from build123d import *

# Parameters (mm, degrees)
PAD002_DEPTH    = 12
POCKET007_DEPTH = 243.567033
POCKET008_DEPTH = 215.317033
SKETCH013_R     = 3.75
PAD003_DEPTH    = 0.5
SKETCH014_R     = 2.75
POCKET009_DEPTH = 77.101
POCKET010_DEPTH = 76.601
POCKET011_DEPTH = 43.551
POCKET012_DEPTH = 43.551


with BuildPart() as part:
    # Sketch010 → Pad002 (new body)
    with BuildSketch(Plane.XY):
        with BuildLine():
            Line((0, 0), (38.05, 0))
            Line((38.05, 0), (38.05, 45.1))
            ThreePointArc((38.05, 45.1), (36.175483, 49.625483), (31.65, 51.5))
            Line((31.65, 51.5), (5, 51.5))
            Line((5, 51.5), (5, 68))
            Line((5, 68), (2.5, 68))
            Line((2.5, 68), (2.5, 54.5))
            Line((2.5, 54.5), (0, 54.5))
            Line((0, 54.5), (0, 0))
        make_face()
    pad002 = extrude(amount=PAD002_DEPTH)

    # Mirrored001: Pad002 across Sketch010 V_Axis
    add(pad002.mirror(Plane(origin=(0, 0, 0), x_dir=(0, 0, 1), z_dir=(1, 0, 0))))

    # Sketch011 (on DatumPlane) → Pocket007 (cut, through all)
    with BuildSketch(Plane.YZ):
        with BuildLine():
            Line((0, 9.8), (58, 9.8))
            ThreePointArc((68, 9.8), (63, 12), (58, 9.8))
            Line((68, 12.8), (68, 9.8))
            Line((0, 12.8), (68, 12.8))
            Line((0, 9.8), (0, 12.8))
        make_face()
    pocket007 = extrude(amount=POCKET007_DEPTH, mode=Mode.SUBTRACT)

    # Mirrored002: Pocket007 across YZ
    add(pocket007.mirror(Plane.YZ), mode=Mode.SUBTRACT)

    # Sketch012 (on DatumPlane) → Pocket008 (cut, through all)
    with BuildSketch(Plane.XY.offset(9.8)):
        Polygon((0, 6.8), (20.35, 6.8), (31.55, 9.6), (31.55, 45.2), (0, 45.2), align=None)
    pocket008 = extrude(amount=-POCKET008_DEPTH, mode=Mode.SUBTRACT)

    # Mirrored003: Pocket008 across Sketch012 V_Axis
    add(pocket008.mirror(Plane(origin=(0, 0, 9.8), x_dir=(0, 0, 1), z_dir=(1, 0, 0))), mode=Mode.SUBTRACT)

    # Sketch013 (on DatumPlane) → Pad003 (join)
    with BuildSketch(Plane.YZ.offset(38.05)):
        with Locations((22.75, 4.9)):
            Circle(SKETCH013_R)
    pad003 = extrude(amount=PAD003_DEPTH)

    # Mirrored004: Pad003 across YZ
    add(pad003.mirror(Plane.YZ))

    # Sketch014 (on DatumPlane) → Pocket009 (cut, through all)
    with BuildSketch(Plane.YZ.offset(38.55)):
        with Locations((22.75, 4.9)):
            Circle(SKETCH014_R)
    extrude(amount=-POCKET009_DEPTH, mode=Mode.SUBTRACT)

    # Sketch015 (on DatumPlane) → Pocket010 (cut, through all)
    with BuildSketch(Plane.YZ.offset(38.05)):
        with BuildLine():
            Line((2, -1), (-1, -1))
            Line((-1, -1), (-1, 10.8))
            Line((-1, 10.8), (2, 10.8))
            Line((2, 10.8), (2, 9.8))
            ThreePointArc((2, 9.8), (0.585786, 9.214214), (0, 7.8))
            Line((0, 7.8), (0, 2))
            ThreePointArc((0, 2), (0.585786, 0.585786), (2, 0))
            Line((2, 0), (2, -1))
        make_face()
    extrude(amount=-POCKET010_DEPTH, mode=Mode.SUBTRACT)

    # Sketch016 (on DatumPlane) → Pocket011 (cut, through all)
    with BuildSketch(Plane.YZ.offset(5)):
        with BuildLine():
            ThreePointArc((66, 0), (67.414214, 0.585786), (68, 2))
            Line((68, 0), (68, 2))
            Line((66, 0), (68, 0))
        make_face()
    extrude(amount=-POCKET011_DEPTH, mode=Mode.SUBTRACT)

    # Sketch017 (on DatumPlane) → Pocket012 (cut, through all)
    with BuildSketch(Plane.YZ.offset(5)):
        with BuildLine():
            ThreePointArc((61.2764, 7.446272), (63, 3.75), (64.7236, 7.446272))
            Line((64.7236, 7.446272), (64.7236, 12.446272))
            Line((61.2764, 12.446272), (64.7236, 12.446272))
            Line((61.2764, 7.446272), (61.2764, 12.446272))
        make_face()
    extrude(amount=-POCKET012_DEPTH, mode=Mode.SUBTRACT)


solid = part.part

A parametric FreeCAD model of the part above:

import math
import FreeCAD as App
import Part
import Sketcher

V = App.Vector


def add_polygon(sketch, points):
    """Adds a closed chain of lines whose ends are joined by coincident constraints."""
    first, n = sketch.GeometryCount, len(points)
    for a, b in zip(points, points[1:] + points[:1]):
        sketch.addGeometry(Part.LineSegment(App.Vector(*a, 0), App.Vector(*b, 0)), False)
    for i in range(n):
        sketch.addConstraint(Sketcher.Constraint("Coincident", first + i, 2, first + (i + 1) % n, 1))

doc = App.newDocument("Part")
params = doc.addObject("Spreadsheet::Sheet", "Params")
for row, (alias, value) in enumerate([
    ("sketch1_radius", "6.400001 mm"),
    ("sketch1_width", "2.5 mm"),
    ("sketch1_height", "45.1 mm"),
    ("sketch1_height2", "16.5 mm"),
    ("sketch1_height3", "13.5 mm"),
    ("pad1_length", "12 mm"),
    ("sketch2_width", "58 mm"),
    ("sketch2_width2", "68 mm"),
    ("sketch2_height", "3 mm"),
    ("sketch3_height", "35.6 mm"),
    ("sketch3_height2", "38.4 mm"),
    ("sketch3_width", "20.35 mm"),
    ("sketch3_width2", "31.55 mm"),
    ("sketch4_diameter", "7.5 mm"),
    ("pad2_length", "0.5 mm"),
    ("sketch5_diameter", "5.5 mm"),
    ("sketch6_radius", "1.999999 mm"),
    ("sketch6_width", "3 mm"),
    ("sketch6_height", "1 mm"),
    ("sketch6_height2", "5.8 mm"),
    ("sketch7_radius", "1.999999 mm"),
    ("sketch8_height", "5 mm"),
    ("sketch8_radius", "2.25 mm"),
], start=1):
    params.set(f"A{row}", alias)
    params.set(f"B{row}", "=" + value)
    params.setAlias(f"B{row}", alias)

body = doc.addObject("PartDesign::Body", "Body")

# Sketch on XY plane
sketch1 = doc.addObject("Sketcher::SketchObject", "Sketch")
body.addObject(sketch1)
sketch1.AttachmentSupport = (doc.XY_Plane, [""])
sketch1.MapMode = "FlatFace"
sketch1.addGeometry([
    Part.LineSegment(V(0, 0, 0), V(38, 0, 0)),  # 0
    Part.LineSegment(V(38, 0, 0), V(38, 45.1, 0)),  # 1
    Part.ArcOfCircle(Part.Circle(V(31.6, 45.1, 0), V(0, 0, 1), 6.4), math.radians(0), math.radians(90)),  # 2
    Part.LineSegment(V(31.6, 51.5, 0), V(5, 51.5, 0)),  # 3
    Part.LineSegment(V(5, 51.5, 0), V(5, 68, 0)),  # 4
    Part.LineSegment(V(5, 68, 0), V(2.5, 68, 0)),  # 5
    Part.LineSegment(V(2.5, 68, 0), V(2.5, 54.5, 0)),  # 6
    Part.LineSegment(V(2.5, 54.5, 0), V(0, 54.5, 0)),  # 7
    Part.LineSegment(V(0, 54.5, 0), V(0, 0, 0)),  # 8
], False)
sketch1.addConstraint([
    Sketcher.Constraint("Coincident", 0, 2, 1, 1),
    Sketcher.Constraint("Tangent", 1, 2, 2, 1),
    Sketcher.Constraint("Tangent", 2, 2, 3, 1),
    Sketcher.Constraint("Coincident", 3, 2, 4, 1),
    Sketcher.Constraint("Coincident", 4, 2, 5, 1),
    Sketcher.Constraint("Coincident", 5, 2, 6, 1),
    Sketcher.Constraint("Coincident", 6, 2, 7, 1),
    Sketcher.Constraint("Coincident", 7, 2, 8, 1),
    Sketcher.Constraint("Coincident", 8, 2, 0, 1),
    Sketcher.Constraint("Horizontal", 0),
    Sketcher.Constraint("Vertical", 1),
    Sketcher.Constraint("Horizontal", 3),
    Sketcher.Constraint("Vertical", 4),
    Sketcher.Constraint("Horizontal", 5),
    Sketcher.Constraint("Vertical", 6),
    Sketcher.Constraint("Horizontal", 7),
    Sketcher.Constraint("Vertical", 8),
    Sketcher.Constraint("Coincident", 8, 2, -1, 1),
    Sketcher.Constraint("Equal", 5, 7),
    Sketcher.Constraint("Radius", 2, 6.400001),
    Sketcher.Constraint("DistanceX", 5, 2, 5, 1, 2.5),
    Sketcher.Constraint("DistanceY", 1, 1, 1, 2, 45.1),
    Sketcher.Constraint("DistanceY", 4, 1, 4, 2, 16.5),
    Sketcher.Constraint("DistanceY", 6, 2, 6, 1, 13.5),
    Sketcher.Constraint("DistanceX", 0, 1, 0, 2, 38.05),
])
sketch1.setExpression("Constraints[19]", "Params.sketch1_radius")
sketch1.setExpression("Constraints[20]", "Params.sketch1_width")
sketch1.setExpression("Constraints[21]", "Params.sketch1_height")
sketch1.setExpression("Constraints[22]", "Params.sketch1_height2")
sketch1.setExpression("Constraints[23]", "Params.sketch1_height3")
pad1 = doc.addObject("PartDesign::Pad", "Pad")
body.addObject(pad1)
pad1.Profile = sketch1
pad1.setExpression("Length", "Params.pad1_length")
doc.recompute()

mirrored = doc.addObject("PartDesign::Mirrored", "Mirrored")
body.addObject(mirrored)
mirrored.Originals = [pad1]
mirrored.MirrorPlane = (doc.YZ_Plane, [""])
body.Tip = mirrored

# Sketch on YZ plane
sketch2 = doc.addObject("Sketcher::SketchObject", "Sketch001")
body.addObject(sketch2)
sketch2.AttachmentSupport = (doc.YZ_Plane, [""])
sketch2.MapMode = "FlatFace"
sketch2.addGeometry([
    Part.LineSegment(V(0, 9.8, 0), V(58, 9.8, 0)),  # 0
    Part.ArcOfCircle(Part.Circle(V(63, 5.2, 0), V(0, 0, 1), 6.8), math.radians(43), math.radians(137)),  # 1
    Part.LineSegment(V(68, 9.8, 0), V(68, 12.8, 0)),  # 2
    Part.LineSegment(V(68, 12.8, 0), V(0, 12.8, 0)),  # 3
    Part.LineSegment(V(0, 12.8, 0), V(0, 9.8, 0)),  # 4
], False)
sketch2.addConstraint([
    Sketcher.Constraint("Coincident", 0, 2, 1, 2),
    Sketcher.Constraint("Coincident", 1, 1, 2, 1),
    Sketcher.Constraint("Coincident", 2, 2, 3, 1),
    Sketcher.Constraint("Coincident", 3, 2, 4, 1),
    Sketcher.Constraint("Coincident", 4, 2, 0, 1),
    Sketcher.Constraint("Horizontal", 0),
    Sketcher.Constraint("Vertical", 2),
    Sketcher.Constraint("Horizontal", 3),
    Sketcher.Constraint("Vertical", 4),
    Sketcher.Constraint("PointOnObject", 3, 2, -2),
    Sketcher.Constraint("Horizontal", 0, 2, 1, 1),
    Sketcher.Constraint("DistanceX", 0, 1, 0, 2, 58.0),
    Sketcher.Constraint("DistanceX", 3, 2, 3, 1, 68.0),
    Sketcher.Constraint("DistanceY", 2, 1, 2, 2, 3.0),
    Sketcher.Constraint("DistanceY", -1, 1, 0, 2, 9.8),
    Sketcher.Constraint("Radius", 1, 6.781818),
])
sketch2.setExpression("Constraints[11]", "Params.sketch2_width")
sketch2.setExpression("Constraints[12]", "Params.sketch2_width2")
sketch2.setExpression("Constraints[13]", "Params.sketch2_height")
pocket1 = doc.addObject("PartDesign::Pocket", "Pocket")
body.addObject(pocket1)
pocket1.Profile = sketch2
pocket1.Type = "ThroughAll"
pocket1.Reversed = True
doc.recompute()

mirrored2 = doc.addObject("PartDesign::Mirrored", "Mirrored001")
body.addObject(mirrored2)
mirrored2.Originals = [pocket1]
mirrored2.MirrorPlane = (doc.YZ_Plane, [""])
body.Tip = mirrored2

# Sketch on XY plane
sketch3 = doc.addObject("Sketcher::SketchObject", "Sketch002")
body.addObject(sketch3)
sketch3.AttachmentSupport = (doc.XY_Plane, [""])
sketch3.MapMode = "FlatFace"
sketch3.AttachmentOffset = App.Placement(V(0, 0, 9.8), App.Rotation())
add_polygon(sketch3, [(0, 7), (20, 7), (32, 10), (32, 45), (0, 45)])  # lines 0-4
sketch3.addConstraint([
    Sketcher.Constraint("Horizontal", 0),
    Sketcher.Constraint("Vertical", 2),
    Sketcher.Constraint("Horizontal", 3),
    Sketcher.Constraint("Vertical", 4),
    Sketcher.Constraint("PointOnObject", 3, 2, -2),
    Sketcher.Constraint("DistanceY", 2, 1, 2, 2, 35.6),
    Sketcher.Constraint("DistanceY", 4, 2, 4, 1, 38.4),
    Sketcher.Constraint("DistanceX", 0, 1, 0, 2, 20.35),
    Sketcher.Constraint("DistanceX", 3, 2, 3, 1, 31.55),
    Sketcher.Constraint("DistanceY", -1, 1, 0, 2, 6.8),
])
sketch3.setExpression("Constraints[10]", "Params.sketch3_height")
sketch3.setExpression("Constraints[11]", "Params.sketch3_height2")
sketch3.setExpression("Constraints[12]", "Params.sketch3_width")
sketch3.setExpression("Constraints[13]", "Params.sketch3_width2")
pocket2 = doc.addObject("PartDesign::Pocket", "Pocket001")
body.addObject(pocket2)
pocket2.Profile = sketch3
pocket2.Type = "ThroughAll"
doc.recompute()

mirrored3 = doc.addObject("PartDesign::Mirrored", "Mirrored002")
body.addObject(mirrored3)
mirrored3.Originals = [pocket2]
mirrored3.MirrorPlane = (doc.YZ_Plane, [""])
body.Tip = mirrored3

# Sketch on YZ plane
sketch4 = doc.addObject("Sketcher::SketchObject", "Sketch003")
body.addObject(sketch4)
sketch4.AttachmentSupport = (doc.YZ_Plane, [""])
sketch4.MapMode = "FlatFace"
sketch4.AttachmentOffset = App.Placement(V(0, 0, 38.05), App.Rotation())
sketch4.addGeometry(Part.Circle(V(22.8, 4.9, 0), V(0, 0, 1), 3.8), False)
sketch4.addConstraint([
    Sketcher.Constraint("Diameter", 0, 7.5),
    Sketcher.Constraint("DistanceY", -1, 1, 0, 3, 4.9),
    Sketcher.Constraint("DistanceX", -1, 1, 0, 3, 22.75),
])
sketch4.setExpression("Constraints[0]", "Params.sketch4_diameter")
pad2 = doc.addObject("PartDesign::Pad", "Pad001")
body.addObject(pad2)
pad2.Profile = sketch4
pad2.setExpression("Length", "Params.pad2_length")
doc.recompute()

mirrored4 = doc.addObject("PartDesign::Mirrored", "Mirrored003")
body.addObject(mirrored4)
mirrored4.Originals = [pad2]
mirrored4.MirrorPlane = (doc.YZ_Plane, [""])
body.Tip = mirrored4

# Sketch on YZ plane
sketch5 = doc.addObject("Sketcher::SketchObject", "Sketch004")
body.addObject(sketch5)
sketch5.AttachmentSupport = (doc.YZ_Plane, [""])
sketch5.MapMode = "FlatFace"
sketch5.AttachmentOffset = App.Placement(V(0, 0, 38.55), App.Rotation())
sketch5.addGeometry(Part.Circle(V(22.8, 4.9, 0), V(0, 0, 1), 2.8), False)
sketch5.addConstraint([
    Sketcher.Constraint("Diameter", 0, 5.5),
    Sketcher.Constraint("DistanceY", -1, 1, 0, 3, 4.9),
    Sketcher.Constraint("DistanceX", -1, 1, 0, 3, 22.75),
])
sketch5.setExpression("Constraints[0]", "Params.sketch5_diameter")
pocket3 = doc.addObject("PartDesign::Pocket", "Pocket002")
body.addObject(pocket3)
pocket3.Profile = sketch5
pocket3.Type = "ThroughAll"

# Sketch on YZ plane
sketch6 = doc.addObject("Sketcher::SketchObject", "Sketch005")
body.addObject(sketch6)
sketch6.AttachmentSupport = (doc.YZ_Plane, [""])
sketch6.MapMode = "FlatFace"
sketch6.AttachmentOffset = App.Placement(V(0, 0, 38.05), App.Rotation())
sketch6.addGeometry([
    Part.LineSegment(V(-1, -1, 0), V(2, -1, 0)),  # 0
    Part.LineSegment(V(2, -1, 0), V(2, 0, 0)),  # 1
    Part.ArcOfCircle(Part.Circle(V(2, 2, 0), V(0, 0, 1), 2), math.radians(180), math.radians(270)),  # 2
    Part.LineSegment(V(0, 2, 0), V(0, 7.8, 0)),  # 3
    Part.ArcOfCircle(Part.Circle(V(2, 7.8, 0), V(0, 0, 1), 2), math.radians(90), math.radians(180)),  # 4
    Part.LineSegment(V(2, 9.8, 0), V(2, 10.8, 0)),  # 5
    Part.LineSegment(V(2, 10.8, 0), V(-1, 10.8, 0)),  # 6
    Part.LineSegment(V(-1, 10.8, 0), V(-1, -1, 0)),  # 7
], False)
sketch6.addConstraint([
    Sketcher.Constraint("Coincident", 0, 2, 1, 1),
    Sketcher.Constraint("Coincident", 1, 2, 2, 2),
    Sketcher.Constraint("Tangent", 2, 1, 3, 1),
    Sketcher.Constraint("Tangent", 3, 2, 4, 2),
    Sketcher.Constraint("Coincident", 4, 1, 5, 1),
    Sketcher.Constraint("Coincident", 5, 2, 6, 1),
    Sketcher.Constraint("Coincident", 6, 2, 7, 1),
    Sketcher.Constraint("Coincident", 7, 2, 0, 1),
    Sketcher.Constraint("Horizontal", 0),
    Sketcher.Constraint("Vertical", 1),
    Sketcher.Constraint("Vertical", 3),
    Sketcher.Constraint("Vertical", 5),
    Sketcher.Constraint("Horizontal", 6),
    Sketcher.Constraint("Vertical", 7),
    Sketcher.Constraint("Equal", 2, 4),
    Sketcher.Constraint("PointOnObject", 1, 2, -1),
    Sketcher.Constraint("PointOnObject", 2, 1, -2),
    Sketcher.Constraint("Vertical", 4, 3, 0, 2),
    Sketcher.Constraint("Vertical", 1, 2, 4, 1),
    Sketcher.Constraint("Equal", 1, 5),
    Sketcher.Constraint("Radius", 2, 1.999999),
    Sketcher.Constraint("DistanceX", 0, 1, 0, 2, 3.0),
    Sketcher.Constraint("DistanceY", 1, 1, 1, 2, 1.0),
    Sketcher.Constraint("DistanceY", 3, 1, 3, 2, 5.8),
])
sketch6.setExpression("Constraints[20]", "Params.sketch6_radius")
sketch6.setExpression("Constraints[21]", "Params.sketch6_width")
sketch6.setExpression("Constraints[22]", "Params.sketch6_height")
sketch6.setExpression("Constraints[23]", "Params.sketch6_height2")
pocket4 = doc.addObject("PartDesign::Pocket", "Pocket003")
body.addObject(pocket4)
pocket4.Profile = sketch6
pocket4.Type = "ThroughAll"

# Sketch on YZ plane
sketch7 = doc.addObject("Sketcher::SketchObject", "Sketch006")
body.addObject(sketch7)
sketch7.AttachmentSupport = (doc.YZ_Plane, [""])
sketch7.MapMode = "FlatFace"
sketch7.AttachmentOffset = App.Placement(V(0, 0, 5), App.Rotation())
sketch7.addGeometry([
    Part.ArcOfCircle(Part.Circle(V(66, 2, 0), V(0, 0, 1), 2), math.radians(-90), math.radians(0)),
    Part.LineSegment(V(66, 0, 0), V(68, 0, 0)),
    Part.LineSegment(V(68, 0, 0), V(68, 2, 0)),
], False)
sketch7.addConstraint([
    Sketcher.Constraint("Tangent", 0, 1, 1, 1),
    Sketcher.Constraint("Coincident", 1, 2, 2, 1),
    Sketcher.Constraint("Tangent", 2, 2, 0, 2),
    Sketcher.Constraint("Horizontal", 1),
    Sketcher.Constraint("Vertical", 2),
    Sketcher.Constraint("PointOnObject", 0, 1, -1),
    Sketcher.Constraint("Radius", 0, 1.999999),
    Sketcher.Constraint("DistanceX", -1, 1, 0, 3, 66.000001),
])
sketch7.setExpression("Constraints[6]", "Params.sketch7_radius")
pocket5 = doc.addObject("PartDesign::Pocket", "Pocket004")
body.addObject(pocket5)
pocket5.Profile = sketch7
pocket5.Type = "ThroughAll"

# Sketch on YZ plane
sketch8 = doc.addObject("Sketcher::SketchObject", "Sketch007")
body.addObject(sketch8)
sketch8.AttachmentSupport = (doc.YZ_Plane, [""])
sketch8.MapMode = "FlatFace"
sketch8.AttachmentOffset = App.Placement(V(0, 0, 5), App.Rotation())
sketch8.addGeometry([
    Part.ArcOfCircle(Part.Circle(V(63, 6, 0), V(0, 0, 1), 2.2), math.radians(140), math.radians(400)),
    Part.LineSegment(V(64.7, 7.4, 0), V(64.7, 12.4, 0)),
    Part.LineSegment(V(64.7, 12.4, 0), V(61.3, 12.4, 0)),
    Part.LineSegment(V(61.3, 12.4, 0), V(61.3, 7.4, 0)),
], False)
sketch8.addConstraint([
    Sketcher.Constraint("Coincident", 0, 2, 1, 1),
    Sketcher.Constraint("Coincident", 1, 2, 2, 1),
    Sketcher.Constraint("Coincident", 2, 2, 3, 1),
    Sketcher.Constraint("Coincident", 3, 2, 0, 1),
    Sketcher.Constraint("Vertical", 1),
    Sketcher.Constraint("Horizontal", 2),
    Sketcher.Constraint("Vertical", 3),
    Sketcher.Constraint("Horizontal", 0, 2, 3, 2),
    Sketcher.Constraint("DistanceY", 1, 1, 1, 2, 5.0),
    Sketcher.Constraint("Radius", 0, 2.25),
    Sketcher.Constraint("DistanceX", -1, 1, 0, 3, 63.0),
    Sketcher.Constraint("DistanceY", -1, 1, 0, 3, 6.0),
    Sketcher.Constraint("DistanceX", 2, 2, 2, 1, 3.4472),
])
sketch8.setExpression("Constraints[8]", "Params.sketch8_height")
sketch8.setExpression("Constraints[9]", "Params.sketch8_radius")
pocket6 = doc.addObject("PartDesign::Pocket", "Pocket005")
body.addObject(pocket6)
pocket6.Profile = sketch8
pocket6.Type = "ThroughAll"

doc.recompute()
